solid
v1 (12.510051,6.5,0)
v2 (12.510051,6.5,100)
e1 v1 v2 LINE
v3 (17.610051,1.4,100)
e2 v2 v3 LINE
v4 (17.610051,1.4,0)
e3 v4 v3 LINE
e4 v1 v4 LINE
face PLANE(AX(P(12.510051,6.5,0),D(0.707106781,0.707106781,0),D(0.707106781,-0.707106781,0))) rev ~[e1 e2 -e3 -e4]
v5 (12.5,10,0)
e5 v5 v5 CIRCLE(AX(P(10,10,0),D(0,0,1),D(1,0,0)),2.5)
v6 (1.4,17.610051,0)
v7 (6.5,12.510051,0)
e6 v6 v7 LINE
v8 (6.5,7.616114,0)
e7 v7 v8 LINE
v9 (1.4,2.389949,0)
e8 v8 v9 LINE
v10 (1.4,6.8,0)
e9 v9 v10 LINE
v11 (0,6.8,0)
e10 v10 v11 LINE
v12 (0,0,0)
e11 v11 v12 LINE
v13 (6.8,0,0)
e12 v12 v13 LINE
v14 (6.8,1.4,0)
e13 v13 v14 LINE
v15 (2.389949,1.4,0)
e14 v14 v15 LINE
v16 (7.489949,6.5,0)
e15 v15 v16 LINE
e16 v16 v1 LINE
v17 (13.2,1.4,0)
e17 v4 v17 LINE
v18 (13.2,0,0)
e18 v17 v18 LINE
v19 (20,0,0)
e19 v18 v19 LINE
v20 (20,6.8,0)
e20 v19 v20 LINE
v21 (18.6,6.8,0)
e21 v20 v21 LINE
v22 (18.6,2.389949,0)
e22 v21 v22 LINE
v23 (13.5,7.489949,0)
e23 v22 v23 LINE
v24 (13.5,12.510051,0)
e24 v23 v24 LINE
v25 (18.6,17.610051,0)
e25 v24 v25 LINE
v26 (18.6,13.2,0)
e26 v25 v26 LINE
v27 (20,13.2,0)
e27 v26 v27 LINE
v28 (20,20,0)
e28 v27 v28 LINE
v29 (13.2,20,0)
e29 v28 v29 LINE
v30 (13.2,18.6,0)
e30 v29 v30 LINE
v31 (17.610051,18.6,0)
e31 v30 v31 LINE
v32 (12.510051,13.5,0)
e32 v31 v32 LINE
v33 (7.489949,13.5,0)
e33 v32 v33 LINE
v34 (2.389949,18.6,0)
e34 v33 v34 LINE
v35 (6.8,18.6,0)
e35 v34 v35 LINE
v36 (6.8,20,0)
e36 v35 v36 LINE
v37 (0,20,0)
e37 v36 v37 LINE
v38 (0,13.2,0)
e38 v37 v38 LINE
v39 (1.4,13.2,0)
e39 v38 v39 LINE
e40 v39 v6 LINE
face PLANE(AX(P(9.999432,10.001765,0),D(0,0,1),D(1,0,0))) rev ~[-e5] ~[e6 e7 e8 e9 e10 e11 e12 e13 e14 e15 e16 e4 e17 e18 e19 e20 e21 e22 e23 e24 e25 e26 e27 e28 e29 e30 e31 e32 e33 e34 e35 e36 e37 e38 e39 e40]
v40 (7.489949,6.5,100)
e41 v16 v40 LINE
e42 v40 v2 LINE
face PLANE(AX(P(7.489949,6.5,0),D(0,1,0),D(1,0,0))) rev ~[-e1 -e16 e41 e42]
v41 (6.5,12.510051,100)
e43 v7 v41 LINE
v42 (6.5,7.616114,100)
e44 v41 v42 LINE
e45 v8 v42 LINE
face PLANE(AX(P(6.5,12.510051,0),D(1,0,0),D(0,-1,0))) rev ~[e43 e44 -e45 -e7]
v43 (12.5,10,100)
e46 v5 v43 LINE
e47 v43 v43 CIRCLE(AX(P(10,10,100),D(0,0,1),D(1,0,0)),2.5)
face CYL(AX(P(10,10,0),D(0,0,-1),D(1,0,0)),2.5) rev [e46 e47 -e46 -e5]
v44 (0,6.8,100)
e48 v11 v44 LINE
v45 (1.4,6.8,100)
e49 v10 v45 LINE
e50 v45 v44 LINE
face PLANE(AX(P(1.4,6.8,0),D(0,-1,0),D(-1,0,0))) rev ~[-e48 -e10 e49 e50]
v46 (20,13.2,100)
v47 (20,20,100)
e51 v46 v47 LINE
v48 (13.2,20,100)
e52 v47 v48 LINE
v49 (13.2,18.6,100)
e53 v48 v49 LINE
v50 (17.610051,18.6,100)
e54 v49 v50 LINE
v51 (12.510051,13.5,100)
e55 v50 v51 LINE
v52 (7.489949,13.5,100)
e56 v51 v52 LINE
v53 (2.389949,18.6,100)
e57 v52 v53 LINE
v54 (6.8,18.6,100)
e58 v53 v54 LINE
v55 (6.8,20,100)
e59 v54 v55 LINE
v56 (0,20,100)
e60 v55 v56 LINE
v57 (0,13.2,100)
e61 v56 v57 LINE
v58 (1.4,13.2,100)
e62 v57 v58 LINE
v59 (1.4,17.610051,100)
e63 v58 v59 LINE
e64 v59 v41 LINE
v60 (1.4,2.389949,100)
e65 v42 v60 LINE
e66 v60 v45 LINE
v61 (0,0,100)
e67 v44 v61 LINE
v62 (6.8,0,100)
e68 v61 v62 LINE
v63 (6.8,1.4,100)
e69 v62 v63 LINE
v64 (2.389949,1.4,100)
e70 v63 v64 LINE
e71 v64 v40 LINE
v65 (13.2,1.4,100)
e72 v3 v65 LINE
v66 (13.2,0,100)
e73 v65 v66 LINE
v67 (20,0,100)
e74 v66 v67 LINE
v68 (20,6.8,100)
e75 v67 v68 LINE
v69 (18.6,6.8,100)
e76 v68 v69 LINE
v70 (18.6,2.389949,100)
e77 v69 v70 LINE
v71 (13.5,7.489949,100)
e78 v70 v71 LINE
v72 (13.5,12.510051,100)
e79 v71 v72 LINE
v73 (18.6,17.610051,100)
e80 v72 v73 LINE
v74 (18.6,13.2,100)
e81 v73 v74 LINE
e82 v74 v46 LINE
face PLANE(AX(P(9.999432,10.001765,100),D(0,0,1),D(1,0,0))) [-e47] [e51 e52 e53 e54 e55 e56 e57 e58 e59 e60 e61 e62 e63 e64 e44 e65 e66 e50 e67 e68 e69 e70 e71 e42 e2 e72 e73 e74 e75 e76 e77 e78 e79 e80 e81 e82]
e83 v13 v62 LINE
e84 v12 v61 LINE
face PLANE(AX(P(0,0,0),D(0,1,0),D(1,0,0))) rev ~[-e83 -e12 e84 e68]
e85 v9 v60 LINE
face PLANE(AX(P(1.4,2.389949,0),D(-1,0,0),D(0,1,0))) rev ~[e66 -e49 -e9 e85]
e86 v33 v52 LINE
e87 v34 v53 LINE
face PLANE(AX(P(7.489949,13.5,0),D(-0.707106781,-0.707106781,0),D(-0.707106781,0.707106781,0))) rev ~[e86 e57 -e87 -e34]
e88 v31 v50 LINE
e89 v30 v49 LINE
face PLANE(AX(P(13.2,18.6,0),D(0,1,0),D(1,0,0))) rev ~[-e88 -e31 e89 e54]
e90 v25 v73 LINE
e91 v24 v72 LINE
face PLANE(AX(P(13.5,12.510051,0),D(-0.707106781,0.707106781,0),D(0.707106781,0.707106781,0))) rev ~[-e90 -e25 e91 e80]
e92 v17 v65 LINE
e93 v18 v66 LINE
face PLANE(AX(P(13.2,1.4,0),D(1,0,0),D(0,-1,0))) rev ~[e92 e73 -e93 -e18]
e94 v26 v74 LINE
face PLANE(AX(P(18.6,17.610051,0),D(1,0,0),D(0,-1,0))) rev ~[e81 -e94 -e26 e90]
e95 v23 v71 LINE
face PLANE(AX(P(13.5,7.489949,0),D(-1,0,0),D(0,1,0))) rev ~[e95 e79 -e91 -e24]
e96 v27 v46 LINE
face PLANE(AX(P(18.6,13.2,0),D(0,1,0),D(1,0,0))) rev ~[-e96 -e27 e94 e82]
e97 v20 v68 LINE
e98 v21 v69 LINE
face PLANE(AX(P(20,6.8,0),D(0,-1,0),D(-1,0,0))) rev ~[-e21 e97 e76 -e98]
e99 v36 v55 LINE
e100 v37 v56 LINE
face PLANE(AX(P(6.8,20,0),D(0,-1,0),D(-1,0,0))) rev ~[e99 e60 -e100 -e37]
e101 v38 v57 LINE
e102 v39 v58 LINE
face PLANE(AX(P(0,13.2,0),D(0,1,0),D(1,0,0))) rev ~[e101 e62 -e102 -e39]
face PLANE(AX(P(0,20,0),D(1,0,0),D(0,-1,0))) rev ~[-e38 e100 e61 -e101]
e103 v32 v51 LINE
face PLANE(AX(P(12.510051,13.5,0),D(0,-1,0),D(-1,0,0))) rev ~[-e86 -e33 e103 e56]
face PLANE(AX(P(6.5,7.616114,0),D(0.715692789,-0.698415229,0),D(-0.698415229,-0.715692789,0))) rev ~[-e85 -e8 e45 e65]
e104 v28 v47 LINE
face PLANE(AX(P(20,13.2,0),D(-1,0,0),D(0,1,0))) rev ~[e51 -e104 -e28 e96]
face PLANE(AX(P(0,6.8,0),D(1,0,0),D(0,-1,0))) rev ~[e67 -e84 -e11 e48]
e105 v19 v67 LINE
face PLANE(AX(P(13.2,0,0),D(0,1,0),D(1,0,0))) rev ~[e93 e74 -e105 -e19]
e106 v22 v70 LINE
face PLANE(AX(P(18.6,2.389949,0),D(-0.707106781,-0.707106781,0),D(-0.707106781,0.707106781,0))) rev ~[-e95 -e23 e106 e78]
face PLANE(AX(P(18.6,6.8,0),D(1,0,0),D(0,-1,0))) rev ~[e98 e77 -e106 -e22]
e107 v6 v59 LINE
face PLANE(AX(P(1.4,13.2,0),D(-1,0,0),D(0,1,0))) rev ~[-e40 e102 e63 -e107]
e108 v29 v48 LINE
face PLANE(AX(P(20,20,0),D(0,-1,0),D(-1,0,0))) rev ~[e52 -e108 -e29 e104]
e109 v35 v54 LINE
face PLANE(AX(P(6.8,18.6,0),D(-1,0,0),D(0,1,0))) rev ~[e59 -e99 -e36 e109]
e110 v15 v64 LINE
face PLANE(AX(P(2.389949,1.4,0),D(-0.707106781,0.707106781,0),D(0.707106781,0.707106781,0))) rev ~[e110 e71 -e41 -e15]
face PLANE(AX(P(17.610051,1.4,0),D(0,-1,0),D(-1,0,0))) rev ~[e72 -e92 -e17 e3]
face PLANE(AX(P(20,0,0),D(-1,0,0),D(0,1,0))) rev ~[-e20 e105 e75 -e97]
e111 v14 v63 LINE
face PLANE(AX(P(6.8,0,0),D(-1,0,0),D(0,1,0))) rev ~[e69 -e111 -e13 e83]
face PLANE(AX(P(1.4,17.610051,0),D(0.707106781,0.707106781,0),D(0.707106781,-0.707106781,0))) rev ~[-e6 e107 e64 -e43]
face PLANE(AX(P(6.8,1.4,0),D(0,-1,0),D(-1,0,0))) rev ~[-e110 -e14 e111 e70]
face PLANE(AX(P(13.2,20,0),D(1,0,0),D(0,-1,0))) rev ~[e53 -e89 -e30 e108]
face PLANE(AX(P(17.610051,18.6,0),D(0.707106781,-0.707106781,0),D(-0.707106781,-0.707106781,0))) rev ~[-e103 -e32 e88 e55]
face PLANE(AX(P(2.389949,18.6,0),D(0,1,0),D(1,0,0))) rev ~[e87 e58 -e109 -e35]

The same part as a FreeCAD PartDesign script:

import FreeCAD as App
import Part
import Sketcher

V = App.Vector
Q = App.Units.Quantity


def add_polygon(sketch, points):
    """Adds a closed chain of lines whose ends are joined by coincident constraints."""
    first, n = sketch.GeometryCount, len(points)
    for a, b in zip(points, points[1:] + points[:1]):
        sketch.addGeometry(Part.LineSegment(App.Vector(*a, 0), App.Vector(*b, 0)), False)
    for i in range(n):
        sketch.addConstraint(Sketcher.Constraint("Coincident", first + i, 2, first + (i + 1) % n, 1))

doc = App.newDocument("Part")
params = doc.addObject("Spreadsheet::Sheet", "Params")
for row, (alias, value) in enumerate([
    ("sketch1_diameter", "5 mm"),
    ("sketch1_width", "1.4 mm"),
    ("sketch1_width2", "6.8 mm"),
    ("pad1_length", "100 mm"),
], start=1):
    params.set(f"A{row}", alias)
    params.set(f"B{row}", "=" + value)
    params.setAlias(f"B{row}", alias)

body = doc.addObject("PartDesign::Body", "Body")

sketch1 = body.newObject("Sketcher::SketchObject", "Sketch")
sketch1.AttachmentSupport = (doc.getObject("XY_Plane"), [""])
sketch1.MapMode = "FlatFace"
add_polygon(sketch1, [(6.5, 7.616114), (1.4, 2.389949), (1.4, 6.8), (0, 6.8), (0, 0), (6.8, 0), (6.8, 1.4), (2.389949, 1.4), (7.489949, 6.5), (12.510051, 6.5), (17.610051, 1.4), (13.2, 1.4), (13.2, 0), (20, 0), (20, 6.8), (18.6, 6.8), (18.6, 2.389949), (13.5, 7.489949), (13.5, 12.510051), (18.6, 17.610051), (18.6, 13.2), (20, 13.2), (20, 20), (13.2, 20), (13.2, 18.6), (17.610051, 18.6), (12.510051, 13.5), (7.489949, 13.5), (2.389949, 18.6), (6.8, 18.6), (6.8, 20), (0, 20), (0, 13.2), (1.4, 13.2), (1.4, 17.610051), (6.5, 12.510051)])
sketch1.addGeometry(Part.Circle(V(10, 10, 0), V(0, 0, 1), 2.5), False)
sketch1.addConstraint([
    Sketcher.Constraint("Vertical", 1),
    Sketcher.Constraint("Horizontal", 2),
    Sketcher.Constraint("Vertical", 3),
    Sketcher.Constraint("Horizontal", 4),
    Sketcher.Constraint("Vertical", 5),
    Sketcher.Constraint("Horizontal", 6),
    Sketcher.Constraint("Horizontal", 8),
    Sketcher.Constraint("Horizontal", 10),
    Sketcher.Constraint("Vertical", 11),
    Sketcher.Constraint("Horizontal", 12),
    Sketcher.Constraint("Vertical", 13),
    Sketcher.Constraint("Horizontal", 14),
    Sketcher.Constraint("Vertical", 15),
    Sketcher.Constraint("Vertical", 17),
    Sketcher.Constraint("Vertical", 19),
    Sketcher.Constraint("Horizontal", 20),
    Sketcher.Constraint("Vertical", 21),
    Sketcher.Constraint("Horizontal", 22),
    Sketcher.Constraint("Vertical", 23),
    Sketcher.Constraint("Horizontal", 24),
    Sketcher.Constraint("Horizontal", 26),
    Sketcher.Constraint("Horizontal", 28),
    Sketcher.Constraint("Vertical", 29),
    Sketcher.Constraint("Horizontal", 30),
    Sketcher.Constraint("Vertical", 31),
    Sketcher.Constraint("Horizontal", 32),
    Sketcher.Constraint("Vertical", 33),
    Sketcher.Constraint("Vertical", 35),
    Sketcher.Constraint("Coincident", 3, 2, -1, 1),
    Sketcher.Constraint("PointOnObject", 11, 2, -1),
    Sketcher.Constraint("PointOnObject", 30, 2, -2),
    Sketcher.Constraint("Perpendicular", 7, 9),
    Sketcher.Constraint("Parallel", 9, 16),
    Sketcher.Constraint("Perpendicular", 16, 18),
    Sketcher.Constraint("Parallel", 18, 25),
    Sketcher.Constraint("Perpendicular", 25, 27),
    Sketcher.Constraint("Parallel", 27, 34),
    Sketcher.Constraint("Horizontal", 6, 2, 9, 2),
    Sketcher.Constraint("Horizontal", 2, 2, 13, 2),
    Sketcher.Constraint("Horizontal", 0, 2, 15, 2),
    Sketcher.Constraint("Horizontal", 24, 2, 27, 2),
    Sketcher.Constraint("Horizontal", 22, 2, 29, 2),
    Sketcher.Constraint("Horizontal", 20, 2, 31, 2),
    Sketcher.Constraint("Horizontal", 18, 2, 33, 2),
    Sketcher.Constraint("Horizontal", 17, 2, 34, 2),
    Sketcher.Constraint("Vertical", 15, 2, 18, 2),
    Sketcher.Constraint("Vertical", 13, 2, 20, 2),
    Sketcher.Constraint("Vertical", 11, 2, 22, 2),
    Sketcher.Constraint("Vertical", 9, 2, 24, 2),
    Sketcher.Constraint("Vertical", 8, 2, 25, 2),
    Sketcher.Constraint("Vertical", 7, 2, 26, 2),
    Sketcher.Constraint("Vertical", 6, 2, 27, 2),
    Sketcher.Constraint("Vertical", 5, 2, 28, 2),
    Sketcher.Constraint("Vertical", 1, 2, 32, 2),
    Sketcher.Constraint("Equal", 6, 10),
    Sketcher.Constraint("Equal", 4, 12),
    Sketcher.Constraint("Equal", 2, 14),
    Sketcher.Constraint("Equal", 28, 1),
    Sketcher.Constraint("Equal", 30, 3),
    Sketcher.Constraint("Equal", 32, 5),
    Sketcher.Constraint("Equal", 26, 17),
    Sketcher.Constraint("Equal", 15, 19),
    Sketcher.Constraint("Equal", 13, 21),
    Sketcher.Constraint("Equal", 11, 23),
    Sketcher.Constraint("Equal", 9, 16),
    Sketcher.Constraint("Diameter", 36, Q("5 mm")),
    Sketcher.Constraint("DistanceX", 2, 2, 2, 1, Q("1.4 mm")),
    Sketcher.Constraint("DistanceX", 4, 1, 4, 2, Q("6.8 mm")),
    Sketcher.Constraint("DistanceX", -1, 1, 36, 3, Q("10 mm")),
    Sketcher.Constraint("DistanceY", -1, 1, 36, 3, Q("10 mm")),
    Sketcher.Constraint("DistanceX", -1, 1, 12, 2, Q("20 mm")),
    Sketcher.Constraint("Angle", 0, Q("-134.299995 deg")),
    Sketcher.Constraint("DistanceY", 7, 2, 26, 2, Q("7 mm")),
    Sketcher.Constraint("DistanceX", 6, 2, 6, 1, Q("4.410051 mm")),
])
sketch1.setExpression("Constraints[101]", "Params.sketch1_diameter")
sketch1.setExpression("Constraints[102]", "Params.sketch1_width")
sketch1.setExpression("Constraints[103]", "Params.sketch1_width2")
pad1 = body.newObject("PartDesign::Pad", "Pad")
pad1.Profile = sketch1
pad1.setExpression("Length", "Params.pad1_length")

doc.recompute()
